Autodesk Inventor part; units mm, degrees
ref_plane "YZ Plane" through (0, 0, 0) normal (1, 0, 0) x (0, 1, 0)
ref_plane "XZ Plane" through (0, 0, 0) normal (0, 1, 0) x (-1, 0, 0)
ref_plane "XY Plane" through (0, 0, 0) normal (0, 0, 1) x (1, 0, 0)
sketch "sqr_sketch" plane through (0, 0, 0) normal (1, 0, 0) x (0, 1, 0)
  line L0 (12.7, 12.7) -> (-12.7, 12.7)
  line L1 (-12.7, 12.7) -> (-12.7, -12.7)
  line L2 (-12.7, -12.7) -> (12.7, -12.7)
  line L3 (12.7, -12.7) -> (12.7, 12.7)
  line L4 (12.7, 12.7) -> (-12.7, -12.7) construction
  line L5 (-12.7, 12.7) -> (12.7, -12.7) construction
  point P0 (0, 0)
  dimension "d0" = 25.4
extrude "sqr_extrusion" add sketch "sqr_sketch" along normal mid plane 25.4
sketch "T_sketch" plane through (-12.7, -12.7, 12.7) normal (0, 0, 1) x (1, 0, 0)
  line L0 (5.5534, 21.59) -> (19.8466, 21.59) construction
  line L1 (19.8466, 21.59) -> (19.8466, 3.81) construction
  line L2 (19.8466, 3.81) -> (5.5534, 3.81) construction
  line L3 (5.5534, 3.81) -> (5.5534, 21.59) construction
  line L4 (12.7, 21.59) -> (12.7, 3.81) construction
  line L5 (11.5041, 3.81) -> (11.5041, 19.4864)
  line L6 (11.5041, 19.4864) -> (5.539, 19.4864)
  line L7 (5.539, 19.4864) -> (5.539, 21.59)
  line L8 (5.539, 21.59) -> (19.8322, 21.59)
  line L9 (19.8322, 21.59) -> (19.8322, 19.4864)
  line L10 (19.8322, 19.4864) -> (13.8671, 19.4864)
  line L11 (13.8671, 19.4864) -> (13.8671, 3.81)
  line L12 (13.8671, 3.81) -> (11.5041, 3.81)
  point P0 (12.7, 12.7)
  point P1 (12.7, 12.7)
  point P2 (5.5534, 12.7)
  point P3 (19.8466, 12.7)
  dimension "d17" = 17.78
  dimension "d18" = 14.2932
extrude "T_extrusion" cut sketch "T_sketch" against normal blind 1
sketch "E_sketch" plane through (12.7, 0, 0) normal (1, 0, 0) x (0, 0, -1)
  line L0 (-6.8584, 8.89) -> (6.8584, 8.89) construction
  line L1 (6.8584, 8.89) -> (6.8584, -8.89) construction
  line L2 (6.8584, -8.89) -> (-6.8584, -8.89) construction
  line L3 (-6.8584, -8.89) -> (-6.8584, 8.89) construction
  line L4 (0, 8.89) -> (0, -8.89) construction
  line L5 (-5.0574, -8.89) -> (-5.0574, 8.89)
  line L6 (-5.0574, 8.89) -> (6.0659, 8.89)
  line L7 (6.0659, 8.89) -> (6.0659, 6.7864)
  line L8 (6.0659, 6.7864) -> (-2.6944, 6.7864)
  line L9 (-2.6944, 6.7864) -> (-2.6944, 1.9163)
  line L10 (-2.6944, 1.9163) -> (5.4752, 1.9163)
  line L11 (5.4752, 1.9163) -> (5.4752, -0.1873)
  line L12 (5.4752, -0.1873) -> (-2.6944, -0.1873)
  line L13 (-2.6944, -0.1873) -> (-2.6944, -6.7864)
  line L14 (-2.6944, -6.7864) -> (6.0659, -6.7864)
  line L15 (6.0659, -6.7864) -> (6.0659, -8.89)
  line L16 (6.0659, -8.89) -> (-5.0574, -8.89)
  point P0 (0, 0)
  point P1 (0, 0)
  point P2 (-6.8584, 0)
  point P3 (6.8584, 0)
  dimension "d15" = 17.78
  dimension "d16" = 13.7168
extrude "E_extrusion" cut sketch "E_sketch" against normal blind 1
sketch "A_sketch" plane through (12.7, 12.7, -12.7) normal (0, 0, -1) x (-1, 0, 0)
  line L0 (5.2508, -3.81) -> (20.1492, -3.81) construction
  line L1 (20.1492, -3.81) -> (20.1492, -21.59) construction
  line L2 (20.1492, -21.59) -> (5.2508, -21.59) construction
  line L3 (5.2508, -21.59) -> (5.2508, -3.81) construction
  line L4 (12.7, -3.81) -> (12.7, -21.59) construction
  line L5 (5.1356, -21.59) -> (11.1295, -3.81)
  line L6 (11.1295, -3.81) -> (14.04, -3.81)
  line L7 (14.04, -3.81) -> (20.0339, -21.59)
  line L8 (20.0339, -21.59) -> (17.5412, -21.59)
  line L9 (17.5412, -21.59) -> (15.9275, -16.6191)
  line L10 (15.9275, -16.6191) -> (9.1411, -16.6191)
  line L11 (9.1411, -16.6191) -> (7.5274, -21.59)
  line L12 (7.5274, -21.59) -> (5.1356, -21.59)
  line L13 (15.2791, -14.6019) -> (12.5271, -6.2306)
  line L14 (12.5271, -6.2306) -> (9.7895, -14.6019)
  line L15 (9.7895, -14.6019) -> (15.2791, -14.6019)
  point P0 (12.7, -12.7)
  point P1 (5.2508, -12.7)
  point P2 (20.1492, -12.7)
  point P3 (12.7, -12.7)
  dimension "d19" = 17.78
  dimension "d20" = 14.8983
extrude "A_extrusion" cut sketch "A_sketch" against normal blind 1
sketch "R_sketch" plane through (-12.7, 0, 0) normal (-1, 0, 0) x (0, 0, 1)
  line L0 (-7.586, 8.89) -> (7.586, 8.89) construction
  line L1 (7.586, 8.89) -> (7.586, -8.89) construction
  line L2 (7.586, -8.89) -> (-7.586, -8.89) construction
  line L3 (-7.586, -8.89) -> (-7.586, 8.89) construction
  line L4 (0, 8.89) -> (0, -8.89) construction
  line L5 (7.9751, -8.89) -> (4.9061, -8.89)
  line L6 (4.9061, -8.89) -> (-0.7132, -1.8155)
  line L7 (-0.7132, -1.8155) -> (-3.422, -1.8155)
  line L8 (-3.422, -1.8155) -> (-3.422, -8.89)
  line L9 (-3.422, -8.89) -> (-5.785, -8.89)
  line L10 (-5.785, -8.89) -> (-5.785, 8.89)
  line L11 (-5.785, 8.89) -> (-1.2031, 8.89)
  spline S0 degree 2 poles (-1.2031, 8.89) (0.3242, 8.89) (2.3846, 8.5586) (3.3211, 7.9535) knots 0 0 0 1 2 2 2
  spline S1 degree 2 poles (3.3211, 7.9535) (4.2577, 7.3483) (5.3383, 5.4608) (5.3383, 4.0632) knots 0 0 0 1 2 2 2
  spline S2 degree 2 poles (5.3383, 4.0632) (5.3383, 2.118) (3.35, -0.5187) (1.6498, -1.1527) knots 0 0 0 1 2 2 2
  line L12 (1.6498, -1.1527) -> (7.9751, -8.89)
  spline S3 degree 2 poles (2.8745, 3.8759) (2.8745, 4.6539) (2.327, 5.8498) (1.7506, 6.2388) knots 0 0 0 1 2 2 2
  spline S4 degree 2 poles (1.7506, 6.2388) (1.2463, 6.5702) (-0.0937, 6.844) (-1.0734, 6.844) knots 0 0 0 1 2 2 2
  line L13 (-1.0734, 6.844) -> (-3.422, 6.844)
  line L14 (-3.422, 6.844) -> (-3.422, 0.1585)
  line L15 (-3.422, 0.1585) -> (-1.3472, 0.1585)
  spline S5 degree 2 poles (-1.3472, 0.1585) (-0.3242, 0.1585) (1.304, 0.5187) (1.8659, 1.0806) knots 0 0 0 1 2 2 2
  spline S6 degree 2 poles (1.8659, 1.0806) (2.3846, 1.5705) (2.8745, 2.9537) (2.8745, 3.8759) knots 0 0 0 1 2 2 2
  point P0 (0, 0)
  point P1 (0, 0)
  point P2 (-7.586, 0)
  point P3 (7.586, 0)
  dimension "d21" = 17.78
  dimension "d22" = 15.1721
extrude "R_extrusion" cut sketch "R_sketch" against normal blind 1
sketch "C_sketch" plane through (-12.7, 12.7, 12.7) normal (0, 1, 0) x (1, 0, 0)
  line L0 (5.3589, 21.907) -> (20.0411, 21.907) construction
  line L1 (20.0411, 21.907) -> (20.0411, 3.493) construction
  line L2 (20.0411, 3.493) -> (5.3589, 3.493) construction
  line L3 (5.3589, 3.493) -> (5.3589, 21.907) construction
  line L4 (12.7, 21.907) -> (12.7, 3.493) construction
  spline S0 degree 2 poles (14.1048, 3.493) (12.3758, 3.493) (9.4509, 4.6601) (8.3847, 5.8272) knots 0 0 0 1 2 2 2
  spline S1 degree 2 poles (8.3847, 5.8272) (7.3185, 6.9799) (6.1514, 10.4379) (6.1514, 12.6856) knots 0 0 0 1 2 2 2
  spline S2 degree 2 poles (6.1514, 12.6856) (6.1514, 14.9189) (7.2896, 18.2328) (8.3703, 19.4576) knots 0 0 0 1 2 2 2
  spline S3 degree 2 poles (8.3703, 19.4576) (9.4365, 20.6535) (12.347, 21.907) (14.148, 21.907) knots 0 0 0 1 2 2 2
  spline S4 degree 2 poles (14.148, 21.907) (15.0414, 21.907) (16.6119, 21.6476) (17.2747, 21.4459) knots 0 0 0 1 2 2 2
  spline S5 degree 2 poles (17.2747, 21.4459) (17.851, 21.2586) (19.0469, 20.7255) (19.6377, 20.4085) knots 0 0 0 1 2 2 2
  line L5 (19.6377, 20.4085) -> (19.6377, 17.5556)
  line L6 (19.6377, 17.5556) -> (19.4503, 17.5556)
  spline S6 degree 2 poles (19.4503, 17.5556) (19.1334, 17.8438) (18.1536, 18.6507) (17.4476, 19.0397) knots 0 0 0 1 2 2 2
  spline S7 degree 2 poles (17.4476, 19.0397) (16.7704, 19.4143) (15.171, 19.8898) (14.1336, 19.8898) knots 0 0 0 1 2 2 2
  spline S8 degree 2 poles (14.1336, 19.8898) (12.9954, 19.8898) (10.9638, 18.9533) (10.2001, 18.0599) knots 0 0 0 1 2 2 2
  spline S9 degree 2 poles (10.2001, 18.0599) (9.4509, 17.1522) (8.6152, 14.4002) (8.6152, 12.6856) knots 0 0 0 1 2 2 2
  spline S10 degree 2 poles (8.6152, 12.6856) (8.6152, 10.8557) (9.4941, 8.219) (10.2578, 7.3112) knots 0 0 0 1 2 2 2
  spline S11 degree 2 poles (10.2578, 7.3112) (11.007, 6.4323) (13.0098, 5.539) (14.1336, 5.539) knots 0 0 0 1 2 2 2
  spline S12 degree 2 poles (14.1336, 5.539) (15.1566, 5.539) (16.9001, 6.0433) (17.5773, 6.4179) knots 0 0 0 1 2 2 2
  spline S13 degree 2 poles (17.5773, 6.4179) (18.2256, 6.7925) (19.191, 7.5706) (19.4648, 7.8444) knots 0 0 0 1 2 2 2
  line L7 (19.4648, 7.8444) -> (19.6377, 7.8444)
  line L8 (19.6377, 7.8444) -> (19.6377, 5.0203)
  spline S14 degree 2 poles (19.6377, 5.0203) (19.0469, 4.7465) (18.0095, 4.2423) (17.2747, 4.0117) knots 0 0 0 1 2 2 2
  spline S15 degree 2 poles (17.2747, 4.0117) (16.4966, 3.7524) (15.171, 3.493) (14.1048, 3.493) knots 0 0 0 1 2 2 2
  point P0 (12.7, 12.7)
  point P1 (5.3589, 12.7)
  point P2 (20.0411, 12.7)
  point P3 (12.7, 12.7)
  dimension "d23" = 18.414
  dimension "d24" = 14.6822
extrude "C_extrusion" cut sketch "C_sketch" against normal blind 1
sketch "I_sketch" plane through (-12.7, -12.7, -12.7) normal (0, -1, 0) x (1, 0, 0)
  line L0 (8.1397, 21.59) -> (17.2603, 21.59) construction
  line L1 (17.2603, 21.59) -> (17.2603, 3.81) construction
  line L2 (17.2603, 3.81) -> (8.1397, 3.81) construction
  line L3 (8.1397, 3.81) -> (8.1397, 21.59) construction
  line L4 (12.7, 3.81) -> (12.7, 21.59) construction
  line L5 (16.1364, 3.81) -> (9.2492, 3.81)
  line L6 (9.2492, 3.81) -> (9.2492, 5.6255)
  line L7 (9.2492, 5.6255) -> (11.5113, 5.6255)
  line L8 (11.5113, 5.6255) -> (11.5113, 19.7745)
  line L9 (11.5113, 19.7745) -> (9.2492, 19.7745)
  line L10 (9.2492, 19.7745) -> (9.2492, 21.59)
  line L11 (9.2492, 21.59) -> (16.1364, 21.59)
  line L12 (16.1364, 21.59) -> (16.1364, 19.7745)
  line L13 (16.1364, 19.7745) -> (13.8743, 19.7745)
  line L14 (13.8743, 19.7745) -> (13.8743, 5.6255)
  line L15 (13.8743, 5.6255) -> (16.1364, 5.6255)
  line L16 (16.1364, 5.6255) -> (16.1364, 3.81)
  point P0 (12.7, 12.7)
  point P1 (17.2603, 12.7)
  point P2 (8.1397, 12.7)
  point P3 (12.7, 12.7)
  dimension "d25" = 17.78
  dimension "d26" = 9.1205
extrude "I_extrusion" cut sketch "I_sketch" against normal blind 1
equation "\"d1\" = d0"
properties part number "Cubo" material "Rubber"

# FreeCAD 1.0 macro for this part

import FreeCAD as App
import Part
import Sketcher

V = App.Vector
Q = App.Units.Quantity

doc = App.newDocument("Part")
body = doc.addObject("PartDesign::Body", "Body")

# Sketch on YZ plane
sketch1 = body.newObject("Sketcher::SketchObject", "Sketch")
sketch1.AttachmentSupport = (doc.getObject("YZ_Plane"), [""])
sketch1.MapMode = "FlatFace"
sketch1.addGeometry([
    Part.LineSegment(V(12.7, -12.7, 0), V(12.7, 12.7, 0)),
    Part.LineSegment(V(12.7, 12.7, 0), V(-12.7, 12.7, 0)),
    Part.LineSegment(V(-12.7, 12.7, 0), V(-12.7, -12.7, 0)),
    Part.LineSegment(V(-12.7, -12.7, 0), V(12.7, -12.7, 0)),
], False)
sketch1.addConstraint([
    Sketcher.Constraint("Coincident", 0, 2, 1, 1),
    Sketcher.Constraint("Coincident", 1, 2, 2, 1),
    Sketcher.Constraint("Coincident", 2, 2, 3, 1),
    Sketcher.Constraint("Coincident", 3, 2, 0, 1),
    Sketcher.Constraint("Vertical", 0),
    Sketcher.Constraint("Horizontal", 1),
    Sketcher.Constraint("Vertical", 2),
    Sketcher.Constraint("Horizontal", 3),
    Sketcher.Constraint("Symmetric", 0, 2, 2, 2, -1, 1),
    Sketcher.Constraint("Equal", 3, 0),
    Sketcher.Constraint("DistanceX", 1, 2, 1, 1, Q("1 in")),
])
pad1 = body.newObject("PartDesign::Pad", "Pad")
pad1.Profile = sketch1
pad1.Length = Q("1 in")
pad1.Midplane = True

# Sketch on XY plane
sketch2 = body.newObject("Sketcher::SketchObject", "Sketch001")
sketch2.AttachmentSupport = (doc.getObject("XY_Plane"), [""])
sketch2.MapMode = "FlatFace"
sketch2.AttachmentOffset = App.Placement(V(0, 0, 0.5 * 25.4), App.Rotation())
sketch2.addGeometry([
    Part.LineSegment(V(-1.1959, 6.7864, 0), V(-1.1959, -8.89, 0)),  # 0
    Part.LineSegment(V(-1.1959, -8.89, 0), V(1.1671, -8.89, 0)),  # 1
    Part.LineSegment(V(1.1671, -8.89, 0), V(1.1671, 6.7864, 0)),  # 2
    Part.LineSegment(V(1.1671, 6.7864, 0), V(7.1322, 6.7864, 0)),  # 3
    Part.LineSegment(V(7.1322, 6.7864, 0), V(7.1322, 8.89, 0)),  # 4
    Part.LineSegment(V(7.1322, 8.89, 0), V(-7.161, 8.89, 0)),  # 5
    Part.LineSegment(V(-7.161, 8.89, 0), V(-7.161, 6.7864, 0)),  # 6
    Part.LineSegment(V(-7.161, 6.7864, 0), V(-1.1959, 6.7864, 0)),  # 7
], False)
sketch2.addConstraint([
    Sketcher.Constraint("Coincident", 0, 2, 1, 1),
    Sketcher.Constraint("Coincident", 1, 2, 2, 1),
    Sketcher.Constraint("Coincident", 2, 2, 3, 1),
    Sketcher.Constraint("Coincident", 3, 2, 4, 1),
    Sketcher.Constraint("Coincident", 4, 2, 5, 1),
    Sketcher.Constraint("Coincident", 5, 2, 6, 1),
    Sketcher.Constraint("Coincident", 6, 2, 7, 1),
    Sketcher.Constraint("Coincident", 7, 2, 0, 1),
    Sketcher.Constraint("Vertical", 0),
    Sketcher.Constraint("Horizontal", 1),
    Sketcher.Constraint("Vertical", 2),
    Sketcher.Constraint("Horizontal", 3),
    Sketcher.Constraint("Vertical", 4),
    Sketcher.Constraint("Horizontal", 5),
    Sketcher.Constraint("Vertical", 6),
    Sketcher.Constraint("Horizontal", 7),
    Sketcher.Constraint("Horizontal", 3, 2, 6, 2),
    Sketcher.Constraint("Equal", 3, 7),
    Sketcher.Constraint("DistanceY", 1, 2, 4, 2, Q("0.7 in")),
    Sketcher.Constraint("DistanceX", 5, 2, 5, 1, Q("14.2932 mm")),
    Sketcher.Constraint("DistanceY", 0, 2, -1, 1, Q("0.35 in")),
    Sketcher.Constraint("DistanceX", 1, 1, 1, 2, Q("2.363 mm")),
    Sketcher.Constraint("DistanceY", 0, 2, 0, 1, Q("15.6764 mm")),
    Sketcher.Constraint("DistanceX", -1, 1, 3, 2, Q("0.2808 in")),
])
pocket1 = body.newObject("PartDesign::Pocket", "Pocket")
pocket1.Profile = sketch2
pocket1.Length = 1

# Sketch on YZ plane
sketch3 = body.newObject("Sketcher::SketchObject", "Sketch002")
sketch3.AttachmentSupport = (doc.getObject("YZ_Plane"), [""])
sketch3.MapMode = "FlatFace"
sketch3.AttachmentOffset = App.Placement(V(0, 0, 0.5 * 25.4), App.Rotation())
sketch3.addGeometry([
    Part.LineSegment(V(8.89, 5.0574, 0), V(-8.89, 5.0574, 0)),  # 0
    Part.LineSegment(V(-8.89, 5.0574, 0), V(-8.89, -6.0659, 0)),  # 1
    Part.LineSegment(V(-8.89, -6.0659, 0), V(-6.7864, -6.0659, 0)),  # 2
    Part.LineSegment(V(-6.7864, -6.0659, 0), V(-6.7864, 2.6944, 0)),  # 3
    Part.LineSegment(V(-6.7864, 2.6944, 0), V(-0.1873, 2.6944, 0)),  # 4
    Part.LineSegment(V(-0.1873, 2.6944, 0), V(-0.1873, -5.4752, 0)),  # 5
    Part.LineSegment(V(-0.1873, -5.4752, 0), V(1.9163, -5.4752, 0)),  # 6
    Part.LineSegment(V(1.9163, -5.4752, 0), V(1.9163, 2.6944, 0)),  # 7
    Part.LineSegment(V(1.9163, 2.6944, 0), V(6.7864, 2.6944, 0)),  # 8
    Part.LineSegment(V(6.7864, 2.6944, 0), V(6.7864, -6.0659, 0)),  # 9
    Part.LineSegment(V(6.7864, -6.0659, 0), V(8.89, -6.0659, 0)),  # 10
    Part.LineSegment(V(8.89, -6.0659, 0), V(8.89, 5.0574, 0)),  # 11
], False)
sketch3.addConstraint([
    Sketcher.Constraint("Coincident", 0, 2, 1, 1),
    Sketcher.Constraint("Coincident", 1, 2, 2, 1),
    Sketcher.Constraint("Coincident", 2, 2, 3, 1),
    Sketcher.Constraint("Coincident", 3, 2, 4, 1),
    Sketcher.Constraint("Coincident", 4, 2, 5, 1),
    Sketcher.Constraint("Coincident", 5, 2, 6, 1),
    Sketcher.Constraint("Coincident", 6, 2, 7, 1),
    Sketcher.Constraint("Coincident", 7, 2, 8, 1),
    Sketcher.Constraint("Coincident", 8, 2, 9, 1),
    Sketcher.Constraint("Coincident", 9, 2, 10, 1),
    Sketcher.Constraint("Coincident", 10, 2, 11, 1),
    Sketcher.Constraint("Coincident", 11, 2, 0, 1),
    Sketcher.Constraint("Horizontal", 0),
    Sketcher.Constraint("Vertical", 1),
    Sketcher.Constraint("Horizontal", 2),
    Sketcher.Constraint("Vertical", 3),
    Sketcher.Constraint("Horizontal", 4),
    Sketcher.Constraint("Vertical", 5),
    Sketcher.Constraint("Horizontal", 6),
    Sketcher.Constraint("Vertical", 7),
    Sketcher.Constraint("Horizontal", 8),
    Sketcher.Constraint("Vertical", 9),
    Sketcher.Constraint("Horizontal", 10),
    Sketcher.Constraint("Vertical", 11),
    Sketcher.Constraint("Symmetric", 3, 2, 8, 2, -2),
    Sketcher.Constraint("Symmetric", 1, 2, 10, 2, -2),
    Sketcher.Constraint("Equal", 2, 6),
    Sketcher.Constraint("DistanceX", 0, 2, 0, 1, Q("0.7 in")),
    Sketcher.Constraint("DistanceX", 4, 1, 4, 2, Q("0.2598 in")),
    Sketcher.Constraint("DistanceY", 3, 1, 3, 2, Q("0.3449 in")),
    Sketcher.Constraint("DistanceX", 2, 1, 2, 2, Q("2.1036 mm")),
    Sketcher.Constraint("DistanceY", 1, 2, 1, 1, Q("11.1233 mm")),
    Sketcher.Constraint("DistanceY", 5, 2, 5, 1, Q("8.1696 mm")),
    Sketcher.Constraint("DistanceY", -1, 1, 0, 2, Q("0.1991 in")),
])
pocket2 = body.newObject("PartDesign::Pocket", "Pocket001")
pocket2.Profile = sketch3
pocket2.Length = 1

# Sketch on XY plane
sketch4 = body.newObject("Sketcher::SketchObject", "Sketch003")
sketch4.AttachmentSupport = (doc.getObject("XY_Plane"), [""])
sketch4.MapMode = "FlatFace"
sketch4.AttachmentOffset = App.Placement(V(0, 0, -0.5 * 25.4), App.Rotation())
sketch4.addGeometry([
    Part.LineSegment(V(1.5705, 8.89, 0), V(7.5644, -8.89, 0)),  # 0
    Part.LineSegment(V(7.5644, -8.89, 0), V(5.1726, -8.89, 0)),  # 1
    Part.LineSegment(V(5.1726, -8.89, 0), V(3.5589, -3.9191, 0)),  # 2
    Part.LineSegment(V(3.5589, -3.9191, 0), V(-3.2275, -3.9191, 0)),  # 3
    Part.LineSegment(V(-3.2275, -3.9191, 0), V(-4.8412, -8.89, 0)),  # 4
    Part.LineSegment(V(-4.8412, -8.89, 0), V(-7.3339, -8.89, 0)),  # 5
    Part.LineSegment(V(-7.3339, -8.89, 0), V(-1.34, 8.89, 0)),  # 6
    Part.LineSegment(V(-1.34, 8.89, 0), V(1.5705, 8.89, 0)),  # 7
    Part.LineSegment(V(0.1729, 6.4694, 0), V(-2.5791, -1.9019, 0)),  # 8
    Part.LineSegment(V(-2.5791, -1.9019, 0), V(2.9105, -1.9019, 0)),  # 9
    Part.LineSegment(V(2.9105, -1.9019, 0), V(0.1729, 6.4694, 0)),  # 10
], False)
sketch4.addConstraint([
    Sketcher.Constraint("Coincident", 0, 2, 1, 1),
    Sketcher.Constraint("Coincident", 1, 2, 2, 1),
    Sketcher.Constraint("Coincident", 2, 2, 3, 1),
    Sketcher.Constraint("Coincident", 3, 2, 4, 1),
    Sketcher.Constraint("Coincident", 4, 2, 5, 1),
    Sketcher.Constraint("Coincident", 5, 2, 6, 1),
    Sketcher.Constraint("Coincident", 6, 2, 7, 1),
    Sketcher.Constraint("Coincident", 7, 2, 0, 1),
    Sketcher.Constraint("Coincident", 8, 2, 9, 1),
    Sketcher.Constraint("Coincident", 9, 2, 10, 1),
    Sketcher.Constraint("Coincident", 10, 2, 8, 1),
    Sketcher.Constraint("Horizontal", 1),
    Sketcher.Constraint("Horizontal", 3),
    Sketcher.Constraint("Horizontal", 5),
    Sketcher.Constraint("Horizontal", 7),
    Sketcher.Constraint("Horizontal", 9),
    Sketcher.Constraint("Horizontal", 1, 2, 4, 2),
    Sketcher.Constraint("Equal", 2, 4),
    Sketcher.Constraint("Equal", 0, 6),
    Sketcher.Constraint("DistanceY", 4, 2, 6, 2, Q("0.7 in")),
    Sketcher.Constraint("DistanceY", 0, 2, -1, 1, Q("0.35 in")),
    Sketcher.Constraint("Angle", 0, Q("-71.3703 deg")),
    Sketcher.Constraint("Angle", 10, Q("108.109 deg")),
    Sketcher.Constraint("DistanceX", 5, 2, 0, 2, Q("14.8983 mm")),
    Sketcher.Constraint("DistanceY", 2, 2, 10, 2, Q("0.409 in")),
    Sketcher.Constraint("DistanceX", 1, 2, 1, 1, Q("2.3918 mm")),
    Sketcher.Constraint("DistanceX", 3, 2, 3, 1, Q("6.7864 mm")),
    Sketcher.Constraint("DistanceX", 5, 2, 5, 1, Q("2.4927 mm")),
    Sketcher.Constraint("DistanceX", 9, 1, 9, 2, Q("5.4896 mm")),
    Sketcher.Constraint("DistanceX", -1, 1, 0, 2, Q("0.2978 in")),
    Sketcher.Constraint("DistanceY", 2, 2, -1, 1, Q("0.1543 in")),
    Sketcher.Constraint("DistanceX", -1, 1, 10, 2, Q("0.0068 in")),
    Sketcher.Constraint("DistanceX", 5, 2, 8, 2, Q("0.1872 in")),
])
pocket3 = body.newObject("PartDesign::Pocket", "Pocket002")
pocket3.Profile = sketch4
pocket3.Length = 1
pocket3.Reversed = True

# Sketch on YZ plane
sketch5 = body.newObject("Sketcher::SketchObject", "Sketch004")
sketch5.AttachmentSupport = (doc.getObject("YZ_Plane"), [""])
sketch5.MapMode = "FlatFace"
sketch5.AttachmentOffset = App.Placement(V(0, 0, -0.5 * 25.4), App.Rotation())
sketch5.addGeometry([
    Part.LineSegment(V(-8.89, 4.9061, 0), V(-8.89, 7.9751, 0)),  # 0
    Part.LineSegment(V(-8.89, 7.9751, 0), V(-1.1527, 1.6498, 0)),  # 1
    Part.BSplineCurve([V(4.0632, 5.3383, 0), V(2.118, 5.3383, 0), V(-0.5187, 3.35, 0), V(-1.1527, 1.6498, 0)], [3, 1, 3], [0, 1, 2], False, 2, [1, 1, 1, 1], False),  # 2
    Part.BSplineCurve([V(7.9535, 3.3211, 0), V(7.3483, 4.2577, 0), V(5.4608, 5.3383, 0), V(4.0632, 5.3383, 0)], [3, 1, 3], [0, 1, 2], False, 2, [1, 1, 1, 1], False),  # 3
    Part.BSplineCurve([V(8.89, -1.2031, 0), V(8.89, 0.3242, 0), V(8.5586, 2.3846, 0), V(7.9535, 3.3211, 0)], [3, 1, 3], [0, 1, 2], False, 2, [1, 1, 1, 1], False),  # 4
    Part.LineSegment(V(8.89, -1.2031, 0), V(8.89, -5.785, 0)),  # 5
    Part.LineSegment(V(8.89, -5.785, 0), V(-8.89, -5.785, 0)),  # 6
    Part.LineSegment(V(-8.89, -5.785, 0), V(-8.89, -3.422, 0)),  # 7
    Part.LineSegment(V(-8.89, -3.422, 0), V(-1.8155, -3.422, 0)),  # 8
    Part.LineSegment(V(-1.8155, -3.422, 0), V(-1.8155, -0.7132, 0)),  # 9
    Part.LineSegment(V(-1.8155, -0.7132, 0), V(-8.89, 4.9061, 0)),  # 10
    Part.BSplineCurve([V(3.8759, 2.8745, 0), V(4.6539, 2.8745, 0), V(5.8498, 2.327, 0), V(6.2388, 1.7506, 0)], [3, 1, 3], [0, 1, 2], False, 2, [1, 1, 1, 1], False),  # 11
    Part.BSplineCurve([V(1.0806, 1.8659, 0), V(1.5705, 2.3846, 0), V(2.9537, 2.8745, 0), V(3.8759, 2.8745, 0)], [3, 1, 3], [0, 1, 2], False, 2, [1, 1, 1, 1], False),  # 12
    Part.BSplineCurve([V(0.1585, -1.3472, 0), V(0.1585, -0.3242, 0), V(0.5187, 1.304, 0), V(1.0806, 1.8659, 0)], [3, 1, 3], [0, 1, 2], False, 2, [1, 1, 1, 1], False),  # 13
    Part.LineSegment(V(0.1585, -1.3472, 0), V(0.1585, -3.422, 0)),  # 14
    Part.LineSegment(V(0.1585, -3.422, 0), V(6.844, -3.422, 0)),  # 15
    Part.LineSegment(V(6.844, -3.422, 0), V(6.844, -1.0734, 0)),  # 16
    Part.BSplineCurve([V(6.2388, 1.7506, 0), V(6.5702, 1.2463, 0), V(6.844, -0.0937, 0), V(6.844, -1.0734, 0)], [3, 1, 3], [0, 1, 2], False, 2, [1, 1, 1, 1], False),  # 17
], False)
sketch5.addConstraint([
    Sketcher.Constraint("Block", 2),
    Sketcher.Constraint("Block", 3),
    Sketcher.Constraint("Block", 4),
    Sketcher.Constraint("Block", 11),
    Sketcher.Constraint("Block", 12),
    Sketcher.Constraint("Block", 13),
    Sketcher.Constraint("Block", 17),
    Sketcher.Constraint("Coincident", 0, 2, 1, 1),
    Sketcher.Constraint("Coincident", 1, 2, 2, 2),
    Sketcher.Constraint("Coincident", 4, 1, 5, 1),
    Sketcher.Constraint("Coincident", 5, 2, 6, 1),
    Sketcher.Constraint("Coincident", 6, 2, 7, 1),
    Sketcher.Constraint("Coincident", 7, 2, 8, 1),
    Sketcher.Constraint("Coincident", 8, 2, 9, 1),
    Sketcher.Constraint("Coincident", 9, 2, 10, 1),
    Sketcher.Constraint("Coincident", 10, 2, 0, 1),
    Sketcher.Constraint("Coincident", 13, 1, 14, 1),
    Sketcher.Constraint("Coincident", 14, 2, 15, 1),
    Sketcher.Constraint("Coincident", 15, 2, 16, 1),
    Sketcher.Constraint("Coincident", 16, 2, 17, 2),
    Sketcher.Constraint("Vertical", 0),
    Sketcher.Constraint("Vertical", 5),
    Sketcher.Constraint("Horizontal", 6),
    Sketcher.Constraint("Vertical", 7),
    Sketcher.Constraint("Horizontal", 8),
    Sketcher.Constraint("Vertical", 9),
    Sketcher.Constraint("Vertical", 14),
    Sketcher.Constraint("Horizontal", 15),
    Sketcher.Constraint("Vertical", 16),
    Sketcher.Constraint("Horizontal", 8, 2, 14, 2),
    Sketcher.Constraint("Vertical", 0, 2, 6, 2),
    Sketcher.Constraint("DistanceX", 6, 2, 6, 1, Q("0.7 in")),
    Sketcher.Constraint("Angle", 10, Q("141.5398 deg")),
    Sketcher.Constraint("DistanceY", 5, 2, 5, 1, Q("0.1804 in")),
    Sketcher.Constraint("Distance", 10, Q("0.3557 in")),
    Sketcher.Constraint("DistanceY", 0, 1, 0, 2, Q("3.069 mm")),
    Sketcher.Constraint("DistanceY", 7, 1, 7, 2, Q("2.363 mm")),
    Sketcher.Constraint("DistanceY", 9, 1, 9, 2, Q("2.7088 mm")),
])
pocket4 = body.newObject("PartDesign::Pocket", "Pocket003")
pocket4.Profile = sketch5
pocket4.Length = 1
pocket4.Reversed = True

# Sketch on XZ plane
sketch6 = body.newObject("Sketcher::SketchObject", "Sketch005")
sketch6.AttachmentSupport = (doc.getObject("XZ_Plane"), [""])
sketch6.MapMode = "FlatFace"
sketch6.AttachmentOffset = App.Placement(V(0, 0, -0.5 * 25.4), App.Rotation())
sketch6.addGeometry([
    Part.BSplineCurve([V(1.4048, 9.207, 0), V(-0.3242, 9.207, 0), V(-3.2491, 8.0399, 0), V(-4.3153, 6.8728, 0)], [3, 1, 3], [0, 1, 2], False, 2, [1, 1, 1, 1], False),  # 0
    Part.BSplineCurve([V(4.5747, 8.6883, 0), V(3.7966, 8.9476, 0), V(2.471, 9.207, 0), V(1.4048, 9.207, 0)], [3, 1, 3], [0, 1, 2], False, 2, [1, 1, 1, 1], False),  # 1
    Part.BSplineCurve([V(6.9377, 7.6797, 0), V(6.3469, 7.9535, 0), V(5.3095, 8.4577, 0), V(4.5747, 8.6883, 0)], [3, 1, 3], [0, 1, 2], False, 2, [1, 1, 1, 1], False),  # 2
    Part.LineSegment(V(6.9377, 7.6797, 0), V(6.9377, 4.8556, 0)),  # 3
    Part.LineSegment(V(6.9377, 4.8556, 0), V(6.7648, 4.8556, 0)),  # 4
    Part.BSplineCurve([V(4.8773, 6.2821, 0), V(5.5256, 5.9075, 0), V(6.491, 5.1294, 0), V(6.7648, 4.8556, 0)], [3, 1, 3], [0, 1, 2], False, 2, [1, 1, 1, 1], False),  # 5
    Part.BSplineCurve([V(1.4336, 7.161, 0), V(2.4566, 7.161, 0), V(4.2001, 6.6567, 0), V(4.8773, 6.2821, 0)], [3, 1, 3], [0, 1, 2], False, 2, [1, 1, 1, 1], False),  # 6
    Part.BSplineCurve([V(-2.4422, 5.3888, 0), V(-1.693, 6.2677, 0), V(0.3098, 7.161, 0), V(1.4336, 7.161, 0)], [3, 1, 3], [0, 1, 2], False, 2, [1, 1, 1, 1], False),  # 7
    Part.BSplineCurve([V(-4.0848, 0.0144, 0), V(-4.0848, 1.8443, 0), V(-3.2059, 4.481, 0), V(-2.4422, 5.3888, 0)], [3, 1, 3], [0, 1, 2], False, 2, [1, 1, 1, 1], False),  # 8
    Part.BSplineCurve([V(-2.4999, -5.3599, 0), V(-3.2491, -4.4522, 0), V(-4.0848, -1.7002, 0), V(-4.0848, 0.0144, 0)], [3, 1, 3], [0, 1, 2], False, 2, [1, 1, 1, 1], False),  # 9
    Part.BSplineCurve([V(1.4336, -7.1898, 0), V(0.2954, -7.1898, 0), V(-1.7362, -6.2533, 0), V(-2.4999, -5.3599, 0)], [3, 1, 3], [0, 1, 2], False, 2, [1, 1, 1, 1], False),  # 10
    Part.BSplineCurve([V(4.7476, -6.3397, 0), V(4.0704, -6.7143, 0), V(2.471, -7.1898, 0), V(1.4336, -7.1898, 0)], [3, 1, 3], [0, 1, 2], False, 2, [1, 1, 1, 1], False),  # 11
    Part.BSplineCurve([V(6.7503, -4.8556, 0), V(6.4334, -5.1438, 0), V(5.4536, -5.9507, 0), V(4.7476, -6.3397, 0)], [3, 1, 3], [0, 1, 2], False, 2, [1, 1, 1, 1], False),  # 12
    Part.LineSegment(V(6.7503, -4.8556, 0), V(6.9377, -4.8556, 0)),  # 13
    Part.LineSegment(V(6.9377, -4.8556, 0), V(6.9377, -7.7085, 0)),  # 14
    Part.BSplineCurve([V(4.5747, -8.7459, 0), V(5.151, -8.5586, 0), V(6.3469, -8.0255, 0), V(6.9377, -7.7085, 0)], [3, 1, 3], [0, 1, 2], False, 2, [1, 1, 1, 1], False),  # 15
    Part.BSplineCurve([V(1.448, -9.207, 0), V(2.3414, -9.207, 0), V(3.9119, -8.9476, 0), V(4.5747, -8.7459, 0)], [3, 1, 3], [0, 1, 2], False, 2, [1, 1, 1, 1], False),  # 16
    Part.BSplineCurve([V(-4.3297, -6.7576, 0), V(-3.2635, -7.9535, 0), V(-0.353, -9.207, 0), V(1.448, -9.207, 0)], [3, 1, 3], [0, 1, 2], False, 2, [1, 1, 1, 1], False),  # 17
    Part.BSplineCurve([V(-6.5486, 0.0144, 0), V(-6.5486, -2.2189, 0), V(-5.4104, -5.5328, 0), V(-4.3297, -6.7576, 0)], [3, 1, 3], [0, 1, 2], False, 2, [1, 1, 1, 1], False),  # 18
    Part.BSplineCurve([V(-4.3153, 6.8728, 0), V(-5.3815, 5.7201, 0), V(-6.5486, 2.2621, 0), V(-6.5486, 0.0144, 0)], [3, 1, 3], [0, 1, 2], False, 2, [1, 1, 1, 1], False),  # 19
], False)
sketch6.addConstraint([
    Sketcher.Constraint("Block", 0),
    Sketcher.Constraint("Block", 1),
    Sketcher.Constraint("Block", 2),
    Sketcher.Constraint("Block", 5),
    Sketcher.Constraint("Block", 6),
    Sketcher.Constraint("Block", 7),
    Sketcher.Constraint("Block", 8),
    Sketcher.Constraint("Block", 9),
    Sketcher.Constraint("Block", 10),
    Sketcher.Constraint("Block", 11),
    Sketcher.Constraint("Block", 12),
    Sketcher.Constraint("Block", 15),
    Sketcher.Constraint("Block", 16),
    Sketcher.Constraint("Block", 17),
    Sketcher.Constraint("Block", 18),
    Sketcher.Constraint("Block", 19),
    Sketcher.Constraint("Coincident", 2, 1, 3, 1),
    Sketcher.Constraint("Coincident", 3, 2, 4, 1),
    Sketcher.Constraint("Coincident", 4, 2, 5, 2),
    Sketcher.Constraint("Coincident", 12, 1, 13, 1),
    Sketcher.Constraint("Coincident", 13, 2, 14, 1),
    Sketcher.Constraint("Coincident", 14, 2, 15, 2),
    Sketcher.Constraint("Vertical", 3),
    Sketcher.Constraint("Horizontal", 4),
    Sketcher.Constraint("Horizontal", 13),
    Sketcher.Constraint("Vertical", 14),
])
pocket5 = body.newObject("PartDesign::Pocket", "Pocket004")
pocket5.Profile = sketch6
pocket5.Length = 1
pocket5.Reversed = True

# Sketch on XZ plane
sketch7 = body.newObject("Sketcher::SketchObject", "Sketch006")
sketch7.AttachmentSupport = (doc.getObject("XZ_Plane"), [""])
sketch7.MapMode = "FlatFace"
sketch7.AttachmentOffset = App.Placement(V(0, 0, 0.5 * 25.4), App.Rotation())
sketch7.addGeometry([
    Part.LineSegment(V(-3.4508, -8.89, 0), V(3.4364, -8.89, 0)),  # 0
    Part.LineSegment(V(3.4364, -8.89, 0), V(3.4364, -7.0745, 0)),  # 1
    Part.LineSegment(V(3.4364, -7.0745, 0), V(1.1743, -7.0745, 0)),  # 2
    Part.LineSegment(V(1.1743, -7.0745, 0), V(1.1743, 7.0745, 0)),  # 3
    Part.LineSegment(V(1.1743, 7.0745, 0), V(3.4364, 7.0745, 0)),  # 4
    Part.LineSegment(V(3.4364, 7.0745, 0), V(3.4364, 8.89, 0)),  # 5
    Part.LineSegment(V(3.4364, 8.89, 0), V(-3.4508, 8.89, 0)),  # 6
    Part.LineSegment(V(-3.4508, 8.89, 0), V(-3.4508, 7.0745, 0)),  # 7
    Part.LineSegment(V(-3.4508, 7.0745, 0), V(-1.1887, 7.0745, 0)),  # 8
    Part.LineSegment(V(-1.1887, 7.0745, 0), V(-1.1887, -7.0745, 0)),  # 9
    Part.LineSegment(V(-1.1887, -7.0745, 0), V(-3.4508, -7.0745, 0)),  # 10
    Part.LineSegment(V(-3.4508, -7.0745, 0), V(-3.4508, -8.89, 0)),  # 11
], False)
sketch7.addConstraint([
    Sketcher.Constraint("Coincident", 0, 2, 1, 1),
    Sketcher.Constraint("Coincident", 1, 2, 2, 1),
    Sketcher.Constraint("Coincident", 2, 2, 3, 1),
    Sketcher.Constraint("Coincident", 3, 2, 4, 1),
    Sketcher.Constraint("Coincident", 4, 2, 5, 1),
    Sketcher.Constraint("Coincident", 5, 2, 6, 1),
    Sketcher.Constraint("Coincident", 6, 2, 7, 1),
    Sketcher.Constraint("Coincident", 7, 2, 8, 1),
    Sketcher.Constraint("Coincident", 8, 2, 9, 1),
    Sketcher.Constraint("Coincident", 9, 2, 10, 1),
    Sketcher.Constraint("Coincident", 10, 2, 11, 1),
    Sketcher.Constraint("Coincident", 11, 2, 0, 1),
    Sketcher.Constraint("Horizontal", 0),
    Sketcher.Constraint("Vertical", 1),
    Sketcher.Constraint("Horizontal", 2),
    Sketcher.Constraint("Vertical", 3),
    Sketcher.Constraint("Horizontal", 4),
    Sketcher.Constraint("Vertical", 5),
    Sketcher.Constraint("Horizontal", 6),
    Sketcher.Constraint("Vertical", 7),
    Sketcher.Constraint("Horizontal", 8),
    Sketcher.Constraint("Vertical", 9),
    Sketcher.Constraint("Horizontal", 10),
    Sketcher.Constraint("Vertical", 11),
    Sketcher.Constraint("Symmetric", 1, 2, 4, 2, -1),
    Sketcher.Constraint("Symmetric", 7, 2, 10, 2, -1),
    Sketcher.Constraint("Horizontal", 4, 2, 7, 2),
    Sketcher.Constraint("Equal", 4, 8),
    Sketcher.Constraint("Equal", 1, 5),
    Sketcher.Constraint("DistanceY", 0, 2, 5, 2, Q("0.7 in")),
    Sketcher.Constraint("DistanceX", 0, 1, 0, 2, Q("6.8872 mm")),
    Sketcher.Constraint("DistanceX", 2, 2, 2, 1, Q("2.262 mm")),
    Sketcher.Constraint("DistanceY", 1, 1, 1, 2, Q("1.8155 mm")),
    Sketcher.Constraint("DistanceX", -1, 1, 0, 2, Q("0.1353 in")),
])
pocket6 = body.newObject("PartDesign::Pocket", "Pocket005")
pocket6.Profile = sketch7
pocket6.Length = 1

doc.recompute()
